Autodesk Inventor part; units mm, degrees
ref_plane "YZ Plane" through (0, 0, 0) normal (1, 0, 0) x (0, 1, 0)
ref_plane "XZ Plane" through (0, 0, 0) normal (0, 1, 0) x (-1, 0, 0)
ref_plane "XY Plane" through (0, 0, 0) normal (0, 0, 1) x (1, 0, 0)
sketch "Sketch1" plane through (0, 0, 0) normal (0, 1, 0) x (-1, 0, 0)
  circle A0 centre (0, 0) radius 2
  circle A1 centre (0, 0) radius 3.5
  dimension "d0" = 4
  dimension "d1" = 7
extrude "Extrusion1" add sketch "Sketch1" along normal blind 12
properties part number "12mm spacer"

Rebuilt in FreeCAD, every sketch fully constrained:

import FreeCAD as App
import Part
import Sketcher
Q = App.Units.Quantity

doc = App.newDocument("Part")
body = doc.addObject("PartDesign::Body", "Body")

sketch1 = doc.addObject("Sketcher::SketchObject", "Sketch")
body.addObject(sketch1)
sketch1.AttachmentSupport = (doc.XZ_Plane, [""])
sketch1.MapMode = "FlatFace"
sketch1.addGeometry([
    Part.Circle(App.Vector(0, 0, 0), App.Vector(0, 0, 1), 3.5),
    Part.Circle(App.Vector(0, 0, 0), App.Vector(0, 0, 1), 2),
], False)
sketch1.addConstraint([
    Sketcher.Constraint("Coincident", 0, 3, -1, 1),
    Sketcher.Constraint("Coincident", 1, 3, -1, 1),
    Sketcher.Constraint("Diameter", 0, Q("7 mm")),
    Sketcher.Constraint("Diameter", 1, Q("4 mm")),
])
pad1 = doc.addObject("PartDesign::Pad", "Pad")
body.addObject(pad1)
pad1.Profile = sketch1
pad1.Length = 12
pad1.Reversed = True

doc.recompute()
